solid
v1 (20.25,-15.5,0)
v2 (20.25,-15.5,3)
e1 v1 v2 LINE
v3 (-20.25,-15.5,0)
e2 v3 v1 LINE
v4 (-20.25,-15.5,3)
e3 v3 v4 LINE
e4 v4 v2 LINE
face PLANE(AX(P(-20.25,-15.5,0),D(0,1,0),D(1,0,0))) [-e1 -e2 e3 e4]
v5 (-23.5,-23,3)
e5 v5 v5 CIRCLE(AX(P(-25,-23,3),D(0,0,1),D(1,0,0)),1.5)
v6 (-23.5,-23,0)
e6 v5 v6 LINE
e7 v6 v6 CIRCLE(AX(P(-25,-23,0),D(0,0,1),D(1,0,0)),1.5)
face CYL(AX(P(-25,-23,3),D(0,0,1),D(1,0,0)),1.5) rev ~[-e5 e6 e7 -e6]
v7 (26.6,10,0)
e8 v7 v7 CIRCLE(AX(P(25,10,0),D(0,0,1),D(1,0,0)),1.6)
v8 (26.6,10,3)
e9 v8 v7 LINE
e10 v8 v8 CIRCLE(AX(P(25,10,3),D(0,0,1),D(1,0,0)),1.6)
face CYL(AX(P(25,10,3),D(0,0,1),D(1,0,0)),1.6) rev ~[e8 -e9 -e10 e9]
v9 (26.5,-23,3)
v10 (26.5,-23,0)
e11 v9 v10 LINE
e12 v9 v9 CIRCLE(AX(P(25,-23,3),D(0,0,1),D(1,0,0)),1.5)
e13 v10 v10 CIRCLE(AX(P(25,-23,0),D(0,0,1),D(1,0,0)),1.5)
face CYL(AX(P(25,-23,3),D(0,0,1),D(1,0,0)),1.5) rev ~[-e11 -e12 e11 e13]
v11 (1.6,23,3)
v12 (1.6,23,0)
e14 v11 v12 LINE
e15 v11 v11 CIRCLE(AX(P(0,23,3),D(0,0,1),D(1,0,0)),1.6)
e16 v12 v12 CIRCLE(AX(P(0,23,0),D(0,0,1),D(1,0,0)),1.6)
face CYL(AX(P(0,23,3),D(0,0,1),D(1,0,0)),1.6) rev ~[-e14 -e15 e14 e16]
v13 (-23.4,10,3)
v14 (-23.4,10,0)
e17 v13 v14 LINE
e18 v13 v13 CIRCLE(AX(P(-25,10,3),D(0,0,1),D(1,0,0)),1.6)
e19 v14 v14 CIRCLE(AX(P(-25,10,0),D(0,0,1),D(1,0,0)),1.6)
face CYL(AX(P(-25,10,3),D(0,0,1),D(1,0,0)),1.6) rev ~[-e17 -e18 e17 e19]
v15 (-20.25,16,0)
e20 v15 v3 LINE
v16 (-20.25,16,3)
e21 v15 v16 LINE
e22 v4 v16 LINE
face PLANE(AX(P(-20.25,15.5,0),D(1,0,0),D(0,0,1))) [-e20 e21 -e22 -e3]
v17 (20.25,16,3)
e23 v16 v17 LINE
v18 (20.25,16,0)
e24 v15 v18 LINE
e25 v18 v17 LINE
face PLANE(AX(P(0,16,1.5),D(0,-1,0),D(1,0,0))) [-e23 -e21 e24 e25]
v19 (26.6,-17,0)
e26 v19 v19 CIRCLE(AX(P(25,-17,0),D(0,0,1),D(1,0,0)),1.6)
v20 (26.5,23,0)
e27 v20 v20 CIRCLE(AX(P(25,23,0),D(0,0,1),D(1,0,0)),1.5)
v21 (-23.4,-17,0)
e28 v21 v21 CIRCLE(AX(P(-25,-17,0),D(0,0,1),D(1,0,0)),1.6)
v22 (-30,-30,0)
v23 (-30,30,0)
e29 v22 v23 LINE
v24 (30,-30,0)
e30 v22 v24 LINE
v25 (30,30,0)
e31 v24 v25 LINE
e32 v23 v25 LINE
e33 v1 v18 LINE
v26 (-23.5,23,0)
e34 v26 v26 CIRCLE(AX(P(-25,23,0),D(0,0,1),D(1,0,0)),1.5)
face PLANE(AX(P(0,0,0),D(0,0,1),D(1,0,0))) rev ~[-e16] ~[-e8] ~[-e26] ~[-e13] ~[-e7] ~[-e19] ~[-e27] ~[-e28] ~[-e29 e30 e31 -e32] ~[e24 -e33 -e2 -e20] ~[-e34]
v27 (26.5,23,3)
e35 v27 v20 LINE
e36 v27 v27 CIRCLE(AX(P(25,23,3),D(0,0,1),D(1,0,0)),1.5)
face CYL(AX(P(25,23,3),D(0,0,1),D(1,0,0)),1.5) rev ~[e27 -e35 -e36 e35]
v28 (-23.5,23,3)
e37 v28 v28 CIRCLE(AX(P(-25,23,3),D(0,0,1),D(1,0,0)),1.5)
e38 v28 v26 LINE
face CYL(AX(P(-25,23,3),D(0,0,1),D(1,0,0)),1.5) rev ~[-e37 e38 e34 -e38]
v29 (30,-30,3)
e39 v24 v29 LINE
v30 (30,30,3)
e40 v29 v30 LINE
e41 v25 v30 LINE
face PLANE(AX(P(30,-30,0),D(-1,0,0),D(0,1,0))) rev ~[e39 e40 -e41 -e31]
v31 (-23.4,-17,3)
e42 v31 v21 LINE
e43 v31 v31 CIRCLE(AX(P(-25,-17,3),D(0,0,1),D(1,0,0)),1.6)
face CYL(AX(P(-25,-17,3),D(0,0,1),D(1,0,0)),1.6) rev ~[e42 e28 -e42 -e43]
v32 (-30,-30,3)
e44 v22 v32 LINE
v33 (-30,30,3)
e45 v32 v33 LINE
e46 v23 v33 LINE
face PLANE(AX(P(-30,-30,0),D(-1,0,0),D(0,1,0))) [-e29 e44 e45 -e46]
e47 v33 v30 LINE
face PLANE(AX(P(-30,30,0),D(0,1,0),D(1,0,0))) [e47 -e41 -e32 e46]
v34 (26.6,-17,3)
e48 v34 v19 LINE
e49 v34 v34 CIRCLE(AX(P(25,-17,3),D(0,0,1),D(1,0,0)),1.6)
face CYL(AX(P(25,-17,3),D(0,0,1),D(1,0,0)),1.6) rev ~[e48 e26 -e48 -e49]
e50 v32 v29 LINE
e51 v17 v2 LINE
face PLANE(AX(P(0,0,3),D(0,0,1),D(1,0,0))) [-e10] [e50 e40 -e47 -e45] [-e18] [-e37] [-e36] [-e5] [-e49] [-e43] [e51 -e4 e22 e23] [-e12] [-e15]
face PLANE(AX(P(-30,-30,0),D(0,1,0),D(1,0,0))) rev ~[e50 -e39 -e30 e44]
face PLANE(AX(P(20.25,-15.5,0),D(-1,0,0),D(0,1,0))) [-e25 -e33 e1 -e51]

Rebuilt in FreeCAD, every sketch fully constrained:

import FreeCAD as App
import Part
import Sketcher
from FreeCAD import Vector
Q = App.Units.Quantity

doc = App.newDocument("Part")
params = doc.addObject("Spreadsheet::Sheet", "Params")
for row, (alias, value) in enumerate([
    ("sketch1_width", "60 mm"),
    ("sketch1_height", "31 mm"),
    ("sketch1_width2", "40.5 mm"),
    ("pad1_length", "3 mm"),
    ("sketch2_diameter", "3 mm"),
    ("sketch3_height", "3 mm"),
    ("sketch3_width", "40.5 mm"),
    ("pocket2_length", "0.5 mm"),
    ("sketch4_diameter", "3.2 mm"),
], start=1):
    params.set(f"A{row}", alias)
    params.set(f"B{row}", "=" + value)
    params.setAlias(f"B{row}", alias)

body = doc.addObject("PartDesign::Body", "Body")

sketch1 = body.newObject("Sketcher::SketchObject", "Sketch")
sketch1.AttachmentSupport = (doc.getObject("XY_Plane"), [""])
sketch1.MapMode = "FlatFace"
sketch1.addGeometry([
    Part.LineSegment(Vector(-30, 30, 0), Vector(-30, -30, 0)),
    Part.LineSegment(Vector(-30, -30, 0), Vector(30, -30, 0)),
    Part.LineSegment(Vector(30, -30, 0), Vector(30, 30, 0)),
    Part.LineSegment(Vector(30, 30, 0), Vector(-30, 30, 0)),
    Part.LineSegment(Vector(20, -16, 0), Vector(-20, -16, 0)),
    Part.LineSegment(Vector(-20, -16, 0), Vector(-20, 16, 0)),
    Part.LineSegment(Vector(-20, 16, 0), Vector(20, 16, 0)),
    Part.LineSegment(Vector(20, 16, 0), Vector(20, -16, 0)),
], False)
sketch1.addConstraint([
    Sketcher.Constraint("Coincident", 0, 2, 1, 1),
    Sketcher.Constraint("Coincident", 1, 2, 2, 1),
    Sketcher.Constraint("Coincident", 2, 2, 3, 1),
    Sketcher.Constraint("Coincident", 3, 2, 0, 1),
    Sketcher.Constraint("Coincident", 4, 2, 5, 1),
    Sketcher.Constraint("Coincident", 5, 2, 6, 1),
    Sketcher.Constraint("Coincident", 6, 2, 7, 1),
    Sketcher.Constraint("Coincident", 7, 2, 4, 1),
    Sketcher.Constraint("Vertical", 0),
    Sketcher.Constraint("Horizontal", 1),
    Sketcher.Constraint("Vertical", 2),
    Sketcher.Constraint("Horizontal", 3),
    Sketcher.Constraint("Horizontal", 4),
    Sketcher.Constraint("Vertical", 5),
    Sketcher.Constraint("Horizontal", 6),
    Sketcher.Constraint("Vertical", 7),
    Sketcher.Constraint("Symmetric", 0, 2, 2, 2, -1, 1),
    Sketcher.Constraint("Symmetric", 4, 2, 6, 2, -1, 1),
    Sketcher.Constraint("Equal", 3, 0),
    Sketcher.Constraint("DistanceX", 1, 1, 1, 2, Q("60 mm")),
    Sketcher.Constraint("DistanceY", 5, 1, 5, 2, Q("31 mm")),
    Sketcher.Constraint("DistanceX", 4, 2, 4, 1, Q("40.5 mm")),
])
sketch1.setExpression("Constraints[19]", "Params.sketch1_width")
sketch1.setExpression("Constraints[20]", "Params.sketch1_height")
sketch1.setExpression("Constraints[21]", "Params.sketch1_width2")
pad1 = body.newObject("PartDesign::Pad", "Pad")
pad1.Profile = sketch1
pad1.setExpression("Length", "Params.pad1_length")

sketch2 = body.newObject("Sketcher::SketchObject", "Sketch001")
sketch2.AttachmentSupport = (doc.getObject("XY_Plane"), [""])
sketch2.MapMode = "FlatFace"
sketch2.AttachmentOffset = App.Placement(Vector(0, 0, 3), App.Rotation())
sketch2.addGeometry([
    Part.Circle(Vector(-25, -23, 0), Vector(0, 0, 1), 1.5),
    Part.Circle(Vector(-25, 23, 0), Vector(0, 0, 1), 1.5),
    Part.Circle(Vector(25, 23, 0), Vector(0, 0, 1), 1.5),
    Part.Circle(Vector(25, -23, 0), Vector(0, 0, 1), 1.5),
], False)
sketch2.addConstraint([
    Sketcher.Constraint("Equal", 0, 1),
    Sketcher.Constraint("Equal", 1, 2),
    Sketcher.Constraint("Equal", 2, 3),
    Sketcher.Constraint("Symmetric", 0, 3, 2, 3, -1, 1),
    Sketcher.Constraint("Symmetric", 1, 3, 3, 3, -1, 1),
    Sketcher.Constraint("Symmetric", 1, 3, 2, 3, -2),
    Sketcher.Constraint("Diameter", 0, Q("3 mm")),
    Sketcher.Constraint("DistanceX", 0, 3, -1, 1, Q("25 mm")),
    Sketcher.Constraint("DistanceY", 0, 3, -1, 1, Q("23 mm")),
])
sketch2.setExpression("Constraints[6]", "Params.sketch2_diameter")
pocket1 = body.newObject("PartDesign::Pocket", "Pocket")
pocket1.Profile = sketch2
pocket1.Type = "ThroughAll"

sketch3 = body.newObject("Sketcher::SketchObject", "Sketch002")
sketch3.AttachmentSupport = (doc.getObject("XZ_Plane"), [""])
sketch3.MapMode = "FlatFace"
sketch3.AttachmentOffset = App.Placement(Vector(0, 0, -15.5), App.Rotation())
sketch3.addGeometry([
    Part.LineSegment(Vector(-20.2, 3, 0), Vector(-20.2, 0, 0)),
    Part.LineSegment(Vector(-20.2, 0, 0), Vector(20.2, 0, 0)),
    Part.LineSegment(Vector(20.2, 0, 0), Vector(20.2, 3, 0)),
    Part.LineSegment(Vector(20.2, 3, 0), Vector(-20.2, 3, 0)),
], False)
sketch3.addConstraint([
    Sketcher.Constraint("Coincident", 0, 2, 1, 1),
    Sketcher.Constraint("Coincident", 1, 2, 2, 1),
    Sketcher.Constraint("Coincident", 2, 2, 3, 1),
    Sketcher.Constraint("Coincident", 3, 2, 0, 1),
    Sketcher.Constraint("Vertical", 0),
    Sketcher.Constraint("Horizontal", 1),
    Sketcher.Constraint("Vertical", 2),
    Sketcher.Constraint("Horizontal", 3),
    Sketcher.Constraint("Symmetric", 0, 2, 1, 2, -1, 1),
    Sketcher.Constraint("DistanceY", 0, 2, 0, 1, Q("3 mm")),
    Sketcher.Constraint("DistanceX", 1, 1, 1, 2, Q("40.5 mm")),
])
sketch3.setExpression("Constraints[9]", "Params.sketch3_height")
sketch3.setExpression("Constraints[10]", "Params.sketch3_width")
pocket2 = body.newObject("PartDesign::Pocket", "Pocket001")
pocket2.Profile = sketch3
pocket2.setExpression("Length", "Params.pocket2_length")

sketch4 = body.newObject("Sketcher::SketchObject", "Sketch003")
sketch4.AttachmentSupport = (doc.getObject("XY_Plane"), [""])
sketch4.MapMode = "FlatFace"
sketch4.AttachmentOffset = App.Placement(Vector(0, 0, 3), App.Rotation())
sketch4.addGeometry([
    Part.Circle(Vector(-25, 10, 0), Vector(0, 0, 1), 1.6),
    Part.Circle(Vector(-25, -17, 0), Vector(0, 0, 1), 1.6),
    Part.Circle(Vector(25, 10, 0), Vector(0, 0, 1), 1.6),
    Part.Circle(Vector(25, -17, 0), Vector(0, 0, 1), 1.6),
    Part.Circle(Vector(0, 23, 0), Vector(0, 0, 1), 1.6),
], False)
sketch4.addConstraint([
    Sketcher.Constraint("Equal", 0, 1),
    Sketcher.Constraint("Equal", 1, 2),
    Sketcher.Constraint("Equal", 2, 3),
    Sketcher.Constraint("Equal", 3, 4),
    Sketcher.Constraint("Symmetric", 0, 3, 2, 3, -2),
    Sketcher.Constraint("Symmetric", 1, 3, 3, 3, -2),
    Sketcher.Constraint("PointOnObject", 4, 3, -2),
    Sketcher.Constraint("Vertical", 0, 3, 1, 3),
    Sketcher.Constraint("Diameter", 0, Q("3.2 mm")),
    Sketcher.Constraint("DistanceX", 0, 3, -1, 1, Q("25 mm")),
    Sketcher.Constraint("DistanceY", -1, 1, 0, 3, Q("10 mm")),
    Sketcher.Constraint("DistanceY", 1, 3, -1, 1, Q("17 mm")),
    Sketcher.Constraint("DistanceY", -1, 1, 4, 3, Q("23 mm")),
])
sketch4.setExpression("Constraints[8]", "Params.sketch4_diameter")
pocket3 = body.newObject("PartDesign::Pocket", "Pocket002")
pocket3.Profile = sketch4
pocket3.Type = "ThroughAll"

doc.recompute()
